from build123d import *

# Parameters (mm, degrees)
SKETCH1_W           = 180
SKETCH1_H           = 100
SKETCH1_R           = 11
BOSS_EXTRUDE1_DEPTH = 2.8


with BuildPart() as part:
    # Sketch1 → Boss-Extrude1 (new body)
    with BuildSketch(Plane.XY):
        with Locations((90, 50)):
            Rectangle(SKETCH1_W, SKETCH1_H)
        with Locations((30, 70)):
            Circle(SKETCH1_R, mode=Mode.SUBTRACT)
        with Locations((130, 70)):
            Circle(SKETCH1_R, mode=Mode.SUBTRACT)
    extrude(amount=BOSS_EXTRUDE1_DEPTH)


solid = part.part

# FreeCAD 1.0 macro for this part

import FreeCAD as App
import Part
import Sketcher

V = App.Vector

doc = App.newDocument("Part")
body = doc.addObject("PartDesign::Body", "Body")

sketch1 = body.newObject("Sketcher::SketchObject", "Sketch")
sketch1.AttachmentSupport = (doc.getObject("XY_Plane"), [""])
sketch1.MapMode = "FlatFace"
sketch1.addGeometry(Part.LineSegment(V(0, 100, 0), V(0, 0, 0)), False)
sketch1.addGeometry(Part.LineSegment(V(0, 0, 0), V(180, 0, 0)), False)
sketch1.addGeometry(Part.LineSegment(V(180, 0, 0), V(180, 100, 0)), False)
sketch1.addGeometry(Part.LineSegment(V(180, 100, 0), V(0, 100, 0)), False)
sketch1.addGeometry(Part.Circle(V(30, 70, 0), V(0, 0, 1), 11), False)
sketch1.addGeometry(Part.Circle(V(130, 70, 0), V(0, 0, 1), 11), False)
sketch1.addConstraint(Sketcher.Constraint("Coincident", 0, 2, 1, 1))
sketch1.addConstraint(Sketcher.Constraint("Coincident", 1, 2, 2, 1))
sketch1.addConstraint(Sketcher.Constraint("Coincident", 2, 2, 3, 1))
sketch1.addConstraint(Sketcher.Constraint("Coincident", 3, 2, 0, 1))
sketch1.addConstraint(Sketcher.Constraint("Vertical", 0))
sketch1.addConstraint(Sketcher.Constraint("Horizontal", 1))
sketch1.addConstraint(Sketcher.Constraint("Vertical", 2))
sketch1.addConstraint(Sketcher.Constraint("Horizontal", 3))
sketch1.addConstraint(Sketcher.Constraint("Coincident", 0, 2, -1, 1))
sketch1.addConstraint(Sketcher.Constraint("Equal", 4, 5))
sketch1.addConstraint(Sketcher.Constraint("Horizontal", 4, 3, 5, 3))
sketch1.addConstraint(Sketcher.Constraint("Diameter", 4, 22.0))
sketch1.addConstraint(Sketcher.Constraint("DistanceX", 1, 1, 1, 2, 180.0))
sketch1.addConstraint(Sketcher.Constraint("DistanceY", 0, 2, 0, 1, 100.0))
sketch1.addConstraint(Sketcher.Constraint("DistanceX", -1, 1, 4, 3, 30.0))
sketch1.addConstraint(Sketcher.Constraint("DistanceY", -1, 1, 4, 3, 70.0))
sketch1.addConstraint(Sketcher.Constraint("DistanceX", -1, 1, 5, 3, 130.0))
pad1 = body.newObject("PartDesign::Pad", "Pad")
pad1.Profile = sketch1
pad1.Length = 2.8

doc.recompute()
